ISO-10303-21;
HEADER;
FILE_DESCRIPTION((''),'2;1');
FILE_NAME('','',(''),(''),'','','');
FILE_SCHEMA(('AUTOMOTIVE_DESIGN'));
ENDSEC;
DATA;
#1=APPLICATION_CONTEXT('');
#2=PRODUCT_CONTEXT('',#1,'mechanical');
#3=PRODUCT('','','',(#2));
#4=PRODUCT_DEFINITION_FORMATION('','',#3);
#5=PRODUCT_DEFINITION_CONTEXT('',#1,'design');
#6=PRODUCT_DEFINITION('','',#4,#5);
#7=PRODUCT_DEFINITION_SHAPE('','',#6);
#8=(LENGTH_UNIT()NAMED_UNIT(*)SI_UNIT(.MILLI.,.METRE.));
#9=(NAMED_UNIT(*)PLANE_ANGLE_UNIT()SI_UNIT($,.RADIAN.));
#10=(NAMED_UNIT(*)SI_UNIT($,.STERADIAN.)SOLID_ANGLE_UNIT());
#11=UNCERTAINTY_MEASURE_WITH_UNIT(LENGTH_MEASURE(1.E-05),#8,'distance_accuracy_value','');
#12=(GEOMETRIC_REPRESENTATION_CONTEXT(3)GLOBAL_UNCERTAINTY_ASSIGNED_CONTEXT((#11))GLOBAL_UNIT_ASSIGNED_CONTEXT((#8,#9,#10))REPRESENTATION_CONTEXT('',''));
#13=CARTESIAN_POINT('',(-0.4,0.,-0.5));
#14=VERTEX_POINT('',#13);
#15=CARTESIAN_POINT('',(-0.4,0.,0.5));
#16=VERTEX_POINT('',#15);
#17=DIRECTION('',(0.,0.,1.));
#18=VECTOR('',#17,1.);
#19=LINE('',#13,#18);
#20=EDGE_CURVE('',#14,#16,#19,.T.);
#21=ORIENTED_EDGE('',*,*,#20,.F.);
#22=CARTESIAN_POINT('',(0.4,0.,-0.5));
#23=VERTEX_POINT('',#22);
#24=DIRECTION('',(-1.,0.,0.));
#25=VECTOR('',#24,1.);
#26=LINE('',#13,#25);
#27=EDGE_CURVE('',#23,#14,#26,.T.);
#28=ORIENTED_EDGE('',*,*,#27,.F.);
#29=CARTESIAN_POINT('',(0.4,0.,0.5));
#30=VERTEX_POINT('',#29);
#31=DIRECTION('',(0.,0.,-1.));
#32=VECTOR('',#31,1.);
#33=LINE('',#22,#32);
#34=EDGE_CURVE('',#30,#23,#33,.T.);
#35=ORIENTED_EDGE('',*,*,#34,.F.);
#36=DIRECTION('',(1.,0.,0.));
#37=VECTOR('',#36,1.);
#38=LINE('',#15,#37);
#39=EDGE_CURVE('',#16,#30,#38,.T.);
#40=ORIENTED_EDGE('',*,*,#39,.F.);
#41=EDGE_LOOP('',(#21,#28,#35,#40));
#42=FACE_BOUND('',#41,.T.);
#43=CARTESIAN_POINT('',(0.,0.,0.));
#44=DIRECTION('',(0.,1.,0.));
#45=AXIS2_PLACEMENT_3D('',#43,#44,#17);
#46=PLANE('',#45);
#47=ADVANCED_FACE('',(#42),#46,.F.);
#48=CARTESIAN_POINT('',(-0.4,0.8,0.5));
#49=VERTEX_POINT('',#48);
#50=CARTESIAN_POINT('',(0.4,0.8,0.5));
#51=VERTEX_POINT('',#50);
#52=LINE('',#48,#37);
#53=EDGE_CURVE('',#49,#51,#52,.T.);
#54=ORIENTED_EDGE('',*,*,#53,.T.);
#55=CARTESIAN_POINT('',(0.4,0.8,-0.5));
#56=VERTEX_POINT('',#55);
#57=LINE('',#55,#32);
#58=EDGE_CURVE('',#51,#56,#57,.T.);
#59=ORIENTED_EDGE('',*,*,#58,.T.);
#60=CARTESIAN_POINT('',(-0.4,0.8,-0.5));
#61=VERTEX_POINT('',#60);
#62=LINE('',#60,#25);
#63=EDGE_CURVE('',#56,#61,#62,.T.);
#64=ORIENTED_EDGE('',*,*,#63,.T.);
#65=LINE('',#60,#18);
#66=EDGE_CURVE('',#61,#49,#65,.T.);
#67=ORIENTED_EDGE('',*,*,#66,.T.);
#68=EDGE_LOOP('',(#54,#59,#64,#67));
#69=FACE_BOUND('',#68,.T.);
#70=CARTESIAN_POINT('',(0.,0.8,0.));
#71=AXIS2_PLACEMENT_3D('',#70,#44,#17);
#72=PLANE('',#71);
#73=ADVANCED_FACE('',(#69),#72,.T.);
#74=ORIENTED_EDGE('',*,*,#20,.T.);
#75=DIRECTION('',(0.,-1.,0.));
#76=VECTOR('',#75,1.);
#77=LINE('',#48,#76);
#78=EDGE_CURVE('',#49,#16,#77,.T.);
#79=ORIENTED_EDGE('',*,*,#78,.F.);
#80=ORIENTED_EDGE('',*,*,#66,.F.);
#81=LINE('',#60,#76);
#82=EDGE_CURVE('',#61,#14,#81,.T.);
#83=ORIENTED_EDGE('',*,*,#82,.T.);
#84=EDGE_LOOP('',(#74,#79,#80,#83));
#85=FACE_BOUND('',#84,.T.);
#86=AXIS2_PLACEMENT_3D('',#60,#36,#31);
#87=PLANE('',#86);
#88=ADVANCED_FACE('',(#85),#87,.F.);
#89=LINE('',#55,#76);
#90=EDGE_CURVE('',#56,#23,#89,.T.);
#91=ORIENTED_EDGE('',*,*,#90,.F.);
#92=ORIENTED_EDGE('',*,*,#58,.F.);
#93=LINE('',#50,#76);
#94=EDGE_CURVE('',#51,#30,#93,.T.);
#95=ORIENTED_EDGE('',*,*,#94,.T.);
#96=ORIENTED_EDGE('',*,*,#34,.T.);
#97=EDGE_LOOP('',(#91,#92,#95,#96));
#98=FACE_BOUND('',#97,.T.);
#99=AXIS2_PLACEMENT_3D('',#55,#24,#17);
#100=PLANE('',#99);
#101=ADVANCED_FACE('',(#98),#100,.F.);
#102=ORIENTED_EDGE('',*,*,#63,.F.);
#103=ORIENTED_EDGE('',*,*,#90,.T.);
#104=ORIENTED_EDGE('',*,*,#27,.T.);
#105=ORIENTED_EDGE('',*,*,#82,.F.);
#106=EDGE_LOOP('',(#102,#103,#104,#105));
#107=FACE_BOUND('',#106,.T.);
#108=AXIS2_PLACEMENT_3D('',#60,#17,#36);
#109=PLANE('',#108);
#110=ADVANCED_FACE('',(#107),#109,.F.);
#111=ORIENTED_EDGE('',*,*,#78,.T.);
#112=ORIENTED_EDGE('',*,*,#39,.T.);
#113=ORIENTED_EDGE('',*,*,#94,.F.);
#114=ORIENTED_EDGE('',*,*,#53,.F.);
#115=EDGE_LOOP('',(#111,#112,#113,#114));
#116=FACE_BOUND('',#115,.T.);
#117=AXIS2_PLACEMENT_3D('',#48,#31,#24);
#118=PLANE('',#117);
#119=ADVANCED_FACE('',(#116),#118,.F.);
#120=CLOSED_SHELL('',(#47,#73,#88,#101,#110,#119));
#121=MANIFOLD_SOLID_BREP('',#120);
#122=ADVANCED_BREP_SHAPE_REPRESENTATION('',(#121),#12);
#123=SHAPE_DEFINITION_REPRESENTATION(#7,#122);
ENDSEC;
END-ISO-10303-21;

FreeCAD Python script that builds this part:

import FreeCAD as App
import Part
import Sketcher
Q = App.Units.Quantity

doc = App.newDocument("Part")
body = doc.addObject("PartDesign::Body", "Body")

sketch1 = body.newObject("Sketcher::SketchObject", "Sketch")
sketch1.AttachmentSupport = (doc.getObject("XZ_Plane"), [""])
sketch1.MapMode = "FlatFace"
sketch1.addGeometry([
    Part.LineSegment(App.Vector(-0.4, -0.5, 0), App.Vector(-0.4, 0.5, 0)),
    Part.LineSegment(App.Vector(-0.4, 0.5, 0), App.Vector(0.4, 0.5, 0)),
    Part.LineSegment(App.Vector(0.4, 0.5, 0), App.Vector(0.4, -0.5, 0)),
    Part.LineSegment(App.Vector(0.4, -0.5, 0), App.Vector(-0.4, -0.5, 0)),
], False)
sketch1.addConstraint([
    Sketcher.Constraint("Coincident", 0, 2, 1, 1),
    Sketcher.Constraint("Coincident", 1, 2, 2, 1),
    Sketcher.Constraint("Coincident", 2, 2, 3, 1),
    Sketcher.Constraint("Coincident", 3, 2, 0, 1),
    Sketcher.Constraint("Vertical", 0),
    Sketcher.Constraint("Horizontal", 1),
    Sketcher.Constraint("Vertical", 2),
    Sketcher.Constraint("Horizontal", 3),
    Sketcher.Constraint("Symmetric", 0, 2, 2, 2, -1, 1),
    Sketcher.Constraint("DistanceY", 0, 1, 0, 2, Q("1 mm")),
    Sketcher.Constraint("DistanceX", 1, 1, 1, 2, Q("0.8 mm")),
])
pad1 = body.newObject("PartDesign::Pad", "Pad")
pad1.Profile = sketch1
pad1.Length = 0.8
pad1.Reversed = True

doc.recompute()
